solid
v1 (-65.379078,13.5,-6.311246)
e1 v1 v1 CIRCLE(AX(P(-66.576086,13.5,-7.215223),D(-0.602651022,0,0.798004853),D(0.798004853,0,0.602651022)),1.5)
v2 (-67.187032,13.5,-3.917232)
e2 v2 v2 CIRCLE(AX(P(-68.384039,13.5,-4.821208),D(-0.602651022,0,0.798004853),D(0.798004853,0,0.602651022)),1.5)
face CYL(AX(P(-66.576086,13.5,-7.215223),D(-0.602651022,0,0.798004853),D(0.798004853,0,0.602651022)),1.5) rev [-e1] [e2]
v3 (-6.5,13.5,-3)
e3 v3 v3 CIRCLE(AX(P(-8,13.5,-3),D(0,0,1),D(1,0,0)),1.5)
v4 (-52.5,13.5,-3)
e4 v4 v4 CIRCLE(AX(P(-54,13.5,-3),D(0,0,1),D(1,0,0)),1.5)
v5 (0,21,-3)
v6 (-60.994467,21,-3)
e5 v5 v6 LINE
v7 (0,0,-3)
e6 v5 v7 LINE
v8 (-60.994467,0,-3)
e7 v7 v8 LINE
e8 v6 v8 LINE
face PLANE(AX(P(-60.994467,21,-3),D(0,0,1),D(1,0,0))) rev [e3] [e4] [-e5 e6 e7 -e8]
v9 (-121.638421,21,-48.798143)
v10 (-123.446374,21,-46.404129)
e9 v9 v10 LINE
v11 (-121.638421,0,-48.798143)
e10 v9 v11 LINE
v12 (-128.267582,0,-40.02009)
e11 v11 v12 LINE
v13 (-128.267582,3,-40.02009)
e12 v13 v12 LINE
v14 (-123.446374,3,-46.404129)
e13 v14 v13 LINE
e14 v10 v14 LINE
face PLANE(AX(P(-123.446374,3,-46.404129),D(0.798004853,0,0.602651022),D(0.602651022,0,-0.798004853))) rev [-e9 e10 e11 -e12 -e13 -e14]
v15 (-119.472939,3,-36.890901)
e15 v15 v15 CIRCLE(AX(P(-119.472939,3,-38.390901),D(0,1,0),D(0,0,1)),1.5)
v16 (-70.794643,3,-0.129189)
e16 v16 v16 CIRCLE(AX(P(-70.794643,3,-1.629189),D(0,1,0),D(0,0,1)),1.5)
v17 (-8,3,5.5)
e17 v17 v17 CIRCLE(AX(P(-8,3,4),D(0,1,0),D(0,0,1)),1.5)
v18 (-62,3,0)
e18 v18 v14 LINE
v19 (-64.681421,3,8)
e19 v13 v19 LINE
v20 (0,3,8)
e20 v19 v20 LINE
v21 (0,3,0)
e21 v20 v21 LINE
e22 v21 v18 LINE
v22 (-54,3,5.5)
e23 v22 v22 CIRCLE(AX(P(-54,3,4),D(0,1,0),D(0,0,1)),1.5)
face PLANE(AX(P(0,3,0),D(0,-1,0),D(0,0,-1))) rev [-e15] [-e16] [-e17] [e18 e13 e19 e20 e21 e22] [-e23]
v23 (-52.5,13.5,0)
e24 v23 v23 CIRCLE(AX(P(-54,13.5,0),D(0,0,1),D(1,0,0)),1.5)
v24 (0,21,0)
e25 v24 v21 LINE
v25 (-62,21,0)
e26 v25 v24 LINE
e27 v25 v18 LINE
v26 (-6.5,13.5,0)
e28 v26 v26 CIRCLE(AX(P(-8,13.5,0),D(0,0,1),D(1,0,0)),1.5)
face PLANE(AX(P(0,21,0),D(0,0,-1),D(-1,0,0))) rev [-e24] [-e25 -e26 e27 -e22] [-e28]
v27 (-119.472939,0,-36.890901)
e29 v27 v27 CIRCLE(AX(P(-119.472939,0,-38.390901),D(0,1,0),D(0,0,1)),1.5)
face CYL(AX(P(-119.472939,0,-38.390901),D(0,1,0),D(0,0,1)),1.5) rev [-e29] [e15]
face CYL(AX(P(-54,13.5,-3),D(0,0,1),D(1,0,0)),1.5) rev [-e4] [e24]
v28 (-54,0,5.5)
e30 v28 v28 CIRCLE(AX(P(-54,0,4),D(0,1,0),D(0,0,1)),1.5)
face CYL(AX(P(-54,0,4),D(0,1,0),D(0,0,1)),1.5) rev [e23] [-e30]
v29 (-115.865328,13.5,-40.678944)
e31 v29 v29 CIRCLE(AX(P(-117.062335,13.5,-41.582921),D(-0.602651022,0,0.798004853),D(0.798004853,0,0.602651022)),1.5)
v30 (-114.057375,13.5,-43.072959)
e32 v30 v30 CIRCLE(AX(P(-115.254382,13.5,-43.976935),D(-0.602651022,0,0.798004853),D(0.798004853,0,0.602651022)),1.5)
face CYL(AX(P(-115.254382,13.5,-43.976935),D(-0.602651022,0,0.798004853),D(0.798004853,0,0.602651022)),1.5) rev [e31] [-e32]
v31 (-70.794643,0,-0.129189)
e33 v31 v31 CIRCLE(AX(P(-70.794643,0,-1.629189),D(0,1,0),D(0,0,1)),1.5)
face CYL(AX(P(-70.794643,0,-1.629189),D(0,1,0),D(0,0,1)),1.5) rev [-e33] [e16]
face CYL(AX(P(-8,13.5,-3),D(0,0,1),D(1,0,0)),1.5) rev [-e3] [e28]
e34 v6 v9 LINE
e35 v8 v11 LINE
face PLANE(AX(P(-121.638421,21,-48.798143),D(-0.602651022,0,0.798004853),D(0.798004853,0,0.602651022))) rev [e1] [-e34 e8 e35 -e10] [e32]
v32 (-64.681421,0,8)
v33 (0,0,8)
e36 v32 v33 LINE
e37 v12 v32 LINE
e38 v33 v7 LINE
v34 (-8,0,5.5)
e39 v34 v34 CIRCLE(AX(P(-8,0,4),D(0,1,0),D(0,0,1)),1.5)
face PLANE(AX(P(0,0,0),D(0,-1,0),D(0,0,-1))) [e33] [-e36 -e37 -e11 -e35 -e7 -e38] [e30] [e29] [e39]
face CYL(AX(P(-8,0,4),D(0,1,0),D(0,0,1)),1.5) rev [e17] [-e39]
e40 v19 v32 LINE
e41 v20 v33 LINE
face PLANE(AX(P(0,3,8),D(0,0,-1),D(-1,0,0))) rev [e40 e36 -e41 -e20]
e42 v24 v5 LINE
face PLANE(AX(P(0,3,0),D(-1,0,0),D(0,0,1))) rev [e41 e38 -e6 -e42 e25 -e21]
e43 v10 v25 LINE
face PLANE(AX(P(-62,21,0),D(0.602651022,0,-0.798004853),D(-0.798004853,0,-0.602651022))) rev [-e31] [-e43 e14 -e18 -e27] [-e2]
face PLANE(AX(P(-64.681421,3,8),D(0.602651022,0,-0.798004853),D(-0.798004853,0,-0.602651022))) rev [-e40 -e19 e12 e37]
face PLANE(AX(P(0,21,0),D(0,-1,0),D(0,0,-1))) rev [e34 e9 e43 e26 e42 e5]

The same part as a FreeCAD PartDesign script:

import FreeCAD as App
import Part
import Sketcher

V = App.Vector
Q = App.Units.Quantity

doc = App.newDocument("Part")
params = doc.addObject("Spreadsheet::Sheet", "Params")
for row, (alias, value) in enumerate([
    ("sketch1_width", "62 mm"),
    ("sketch1_height", "8 mm"),
    ("sketch1_length", "77 mm"),
    ("sketch1_length2", "8 mm"),
    ("pad1_length", "3 mm"),
    ("sketch2_width", "62 mm"),
    ("sketch2_height", "3 mm"),
    ("sketch2_length", "3 mm"),
    ("sketch2_length2", "77 mm"),
    ("pad2_length", "18 mm"),
    ("pad2_length2", "3 mm"),
    ("sketch3_diameter", "3 mm"),
    ("pocket1_length", "3 mm"),
    ("sketch4_diameter", "3 mm"),
    ("pocket2_length", "3 mm"),
    ("sketch5_diameter", "3 mm"),
    ("pocket3_length", "3 mm"),
    ("sketch6_diameter", "3 mm"),
    ("pocket4_length", "3 mm"),
    ("sketch7_diameter", "3 mm"),
    ("pocket5_length", "3 mm"),
    ("sketch8_diameter", "3 mm"),
    ("pad3_length", "3 mm"),
], start=1):
    params.set(f"A{row}", alias)
    params.set(f"B{row}", "=" + value)
    params.setAlias(f"B{row}", alias)

body = doc.addObject("PartDesign::Body", "Body")

# Sketch on XZ plane
sketch1 = doc.addObject("Sketcher::SketchObject", "Sketch")
body.addObject(sketch1)
sketch1.AttachmentSupport = (doc.XZ_Plane, [""])
sketch1.MapMode = "FlatFace"
sketch1.addGeometry([
    Part.LineSegment(V(0, 0, 0), V(-62, 0, 0)),  # 0
    Part.LineSegment(V(-62, 0, 0), V(-123, -46, 0)),  # 1
    Part.LineSegment(V(-123, -46, 0), V(-128, -40, 0)),  # 2
    Part.LineSegment(V(-128, -40, 0), V(-65, 8, 0)),  # 3
    Part.LineSegment(V(-65, 8, 0), V(0, 8, 0)),  # 4
    Part.LineSegment(V(0, 8, 0), V(0, 0, 0)),  # 5
], False)
sketch1.addConstraint([
    Sketcher.Constraint("Coincident", 0, 2, 1, 1),
    Sketcher.Constraint("Coincident", 1, 2, 2, 1),
    Sketcher.Constraint("Coincident", 2, 2, 3, 1),
    Sketcher.Constraint("Coincident", 3, 2, 4, 1),
    Sketcher.Constraint("Coincident", 4, 2, 5, 1),
    Sketcher.Constraint("Coincident", 5, 2, 0, 1),
    Sketcher.Constraint("Horizontal", 0),
    Sketcher.Constraint("Horizontal", 4),
    Sketcher.Constraint("Vertical", 5),
    Sketcher.Constraint("Coincident", 5, 2, -1, 1),
    Sketcher.Constraint("Perpendicular", 1, 2),
    Sketcher.Constraint("Perpendicular", 2, 3),
    Sketcher.Constraint("DistanceX", 0, 2, 0, 1, 62.0),
    Sketcher.Constraint("DistanceY", 5, 2, 5, 1, 8.0),
    Sketcher.Constraint("Distance", 1, 77.0),
    Sketcher.Constraint("Distance", 2, 8.0),
    Sketcher.Constraint("Angle", 1, Q("-142.94 deg")),
])
sketch1.setExpression("Constraints[12]", "Params.sketch1_width")
sketch1.setExpression("Constraints[13]", "Params.sketch1_height")
sketch1.setExpression("Constraints[14]", "Params.sketch1_length")
sketch1.setExpression("Constraints[15]", "Params.sketch1_length2")
pad1 = doc.addObject("PartDesign::Pad", "Pad")
body.addObject(pad1)
pad1.Profile = sketch1
pad1.setExpression("Length", "Params.pad1_length")
pad1.Reversed = True

# Sketch on XZ plane
sketch2 = doc.addObject("Sketcher::SketchObject", "Sketch001")
body.addObject(sketch2)
sketch2.AttachmentSupport = (doc.XZ_Plane, [""])
sketch2.MapMode = "FlatFace"
sketch2.AttachmentOffset = App.Placement(V(0, 0, -3), App.Rotation())
sketch2.addGeometry([
    Part.LineSegment(V(-121.6, -48.8, 0), V(-123.4, -46.4, 0)),  # 0
    Part.LineSegment(V(-123.4, -46.4, 0), V(-62, 0, 0)),  # 1
    Part.LineSegment(V(-62, 0, 0), V(0, 0, 0)),  # 2
    Part.LineSegment(V(0, 0, 0), V(0, -3, 0)),  # 3
    Part.LineSegment(V(0, -3, 0), V(-61, -3, 0)),  # 4
    Part.LineSegment(V(-61, -3, 0), V(-121.6, -48.8, 0)),  # 5
], False)
sketch2.addConstraint([
    Sketcher.Constraint("Coincident", 0, 2, 1, 1),
    Sketcher.Constraint("Coincident", 1, 2, 2, 1),
    Sketcher.Constraint("Coincident", 2, 2, 3, 1),
    Sketcher.Constraint("Coincident", 3, 2, 4, 1),
    Sketcher.Constraint("Coincident", 4, 2, 5, 1),
    Sketcher.Constraint("Coincident", 5, 2, 0, 1),
    Sketcher.Constraint("Horizontal", 2),
    Sketcher.Constraint("Vertical", 3),
    Sketcher.Constraint("Horizontal", 4),
    Sketcher.Constraint("Coincident", 2, 2, -1, 1),
    Sketcher.Constraint("Perpendicular", 0, 1),
    Sketcher.Constraint("Parallel", 1, 5),
    Sketcher.Constraint("DistanceX", 2, 1, 2, 2, 62.0),
    Sketcher.Constraint("DistanceY", 3, 2, 3, 1, 3.0),
    Sketcher.Constraint("Distance", 0, 3.0),
    Sketcher.Constraint("Distance", 1, 77.0),
    Sketcher.Constraint("Angle", 0, Q("127.06 deg")),
])
sketch2.setExpression("Constraints[12]", "Params.sketch2_width")
sketch2.setExpression("Constraints[13]", "Params.sketch2_height")
sketch2.setExpression("Constraints[14]", "Params.sketch2_length")
sketch2.setExpression("Constraints[15]", "Params.sketch2_length2")
pad2 = doc.addObject("PartDesign::Pad", "Pad001")
body.addObject(pad2)
pad2.Profile = sketch2
pad2.Type = "TwoLengths"
pad2.setExpression("Length", "Params.pad2_length")
pad2.setExpression("Length2", "Params.pad2_length2")
pad2.Reversed = True

# Sketch on XZ plane
sketch3 = doc.addObject("Sketcher::SketchObject", "Sketch002")
body.addObject(sketch3)
sketch3.AttachmentSupport = (doc.XZ_Plane, [""])
sketch3.MapMode = "FlatFace"
sketch3.AttachmentOffset = App.Placement(V(0, 0, -3), App.Rotation())
sketch3.addGeometry([
    Part.Circle(V(-4, 4, 0), V(0, 0, 1), 1.5),
    Part.Circle(V(-58, 4, 0), V(0, 0, 1), 1.5),
], False)
sketch3.addConstraint([
    Sketcher.Constraint("Equal", 0, 1),
    Sketcher.Constraint("Horizontal", 0, 3, 1, 3),
    Sketcher.Constraint("Diameter", 0, 3.0),
    Sketcher.Constraint("DistanceX", 0, 3, -1, 1, 4.0),
    Sketcher.Constraint("DistanceY", -1, 1, 0, 3, 4.0),
    Sketcher.Constraint("DistanceX", 1, 3, -1, 1, 58.0),
])
sketch3.setExpression("Constraints[2]", "Params.sketch3_diameter")
pocket1 = doc.addObject("PartDesign::Pocket", "Pocket")
body.addObject(pocket1)
pocket1.Profile = sketch3
pocket1.setExpression("Length", "Params.pocket1_length")
pocket1.Reversed = True

# Sketch on XZ plane
sketch4 = doc.addObject("Sketcher::SketchObject", "Sketch003")
body.addObject(sketch4)
sketch4.AttachmentSupport = (doc.XZ_Plane, [""])
sketch4.MapMode = "FlatFace"
sketch4.AttachmentOffset = App.Placement(V(0, 0, -3), App.Rotation())
sketch4.addGeometry([
    Part.Circle(V(-122.7, -40.8, 0), V(0, 0, 1), 1.5),
    Part.Circle(V(-67.6, 0.8, 0), V(0, 0, 1), 1.5),
], False)
sketch4.addConstraint([
    Sketcher.Constraint("Equal", 0, 1),
    Sketcher.Constraint("Diameter", 0, 3.0),
    Sketcher.Constraint("DistanceX", 0, 3, -1, 1, 122.664958),
    Sketcher.Constraint("DistanceY", 0, 3, 1, 3, 41.582921),
    Sketcher.Constraint("DistanceY", 0, 3, -1, 1, 40.801505),
    Sketcher.Constraint("DistanceX", 1, 3, -1, 1, 67.602624),
])
sketch4.setExpression("Constraints[1]", "Params.sketch4_diameter")
pocket2 = doc.addObject("PartDesign::Pocket", "Pocket001")
body.addObject(pocket2)
pocket2.Profile = sketch4
pocket2.setExpression("Length", "Params.pocket2_length")
pocket2.Reversed = True

# Sketch on an angled plane
sketch5 = doc.addObject("Sketcher::SketchObject", "Sketch004")
body.addObject(sketch5)
sketch5.Placement = App.Placement(V(-22.517672, 0, 29.816943), App.Rotation(V(0.798004853, 0, 0.602651022), V(0, 1, 0), V(-0.602651022, 0, 0.798004853), "ZXY"))
sketch5.addGeometry([
    Part.Circle(V(-118.5, 13.5, 0), V(0, 0, 1), 1.5),
    Part.Circle(V(-57.5, 13.5, 0), V(0, 0, 1), 1.5),
], False)
sketch5.addConstraint([
    Sketcher.Constraint("Equal", 0, 1),
    Sketcher.Constraint("Horizontal", 0, 3, 1, 3),
    Sketcher.Constraint("Diameter", 0, 3.0),
    Sketcher.Constraint("DistanceX", 0, 3, 1, 3, 61.0),
    Sketcher.Constraint("DistanceY", -1, 1, 0, 3, 13.5),
    Sketcher.Constraint("DistanceX", 0, 3, -1, 1, 118.476301),
])
sketch5.setExpression("Constraints[2]", "Params.sketch5_diameter")
pocket3 = doc.addObject("PartDesign::Pocket", "Pocket002")
body.addObject(pocket3)
pocket3.Profile = sketch5
pocket3.setExpression("Length", "Params.pocket3_length")

# Sketch on XY plane
sketch6 = doc.addObject("Sketcher::SketchObject", "Sketch005")
body.addObject(sketch6)
sketch6.AttachmentSupport = (doc.XY_Plane, [""])
sketch6.MapMode = "FlatFace"
sketch6.addGeometry([
    Part.Circle(V(-54, 13.5, 0), V(0, 0, 1), 1.5),
    Part.Circle(V(-8, 13.5, 0), V(0, 0, 1), 1.5),
], False)
sketch6.addConstraint([
    Sketcher.Constraint("Equal", 0, 1),
    Sketcher.Constraint("Horizontal", 0, 3, 1, 3),
    Sketcher.Constraint("Diameter", 0, 3.0),
    Sketcher.Constraint("DistanceX", 0, 3, -1, 1, 54.0),
    Sketcher.Constraint("DistanceX", 1, 3, -1, 1, 8.0),
    Sketcher.Constraint("DistanceY", -1, 1, 0, 3, 13.5),
])
sketch6.setExpression("Constraints[2]", "Params.sketch6_diameter")
pocket4 = doc.addObject("PartDesign::Pocket", "Pocket003")
body.addObject(pocket4)
pocket4.Profile = sketch6
pocket4.setExpression("Length", "Params.pocket4_length")

# Sketch on XZ plane
sketch7 = doc.addObject("Sketcher::SketchObject", "Sketch006")
body.addObject(sketch7)
sketch7.AttachmentSupport = (doc.XZ_Plane, [""])
sketch7.MapMode = "FlatFace"
sketch7.AttachmentOffset = App.Placement(V(0, 0, -3), App.Rotation())
sketch7.addGeometry([
    Part.Circle(V(-119.5, -38.4, 0), V(0, 0, 1), 1.5),
    Part.Circle(V(-70.8, -1.6, 0), V(0, 0, 1), 1.5),
    Part.Circle(V(-54, 4, 0), V(0, 0, 1), 1.5),
    Part.Circle(V(-8, 4, 0), V(0, 0, 1), 1.5),
], False)
sketch7.addConstraint([
    Sketcher.Constraint("Equal", 0, 1),
    Sketcher.Constraint("Equal", 1, 2),
    Sketcher.Constraint("Equal", 2, 3),
    Sketcher.Constraint("Horizontal", 2, 3, 3, 3),
    Sketcher.Constraint("Diameter", 0, 3.0),
    Sketcher.Constraint("DistanceX", 2, 3, -1, 1, 54.0),
    Sketcher.Constraint("DistanceY", -1, 1, 2, 3, 4.0),
    Sketcher.Constraint("DistanceX", 3, 3, -1, 1, 8.0),
    Sketcher.Constraint("DistanceY", 0, 3, -1, 1, 38.390901),
    Sketcher.Constraint("DistanceX", 0, 3, -1, 1, 119.472939),
    Sketcher.Constraint("DistanceY", 1, 3, -1, 1, 1.629189),
    Sketcher.Constraint("DistanceX", 1, 3, -1, 1, 70.794643),
])
sketch7.setExpression("Constraints[4]", "Params.sketch7_diameter")
pocket5 = doc.addObject("PartDesign::Pocket", "Pocket004")
body.addObject(pocket5)
pocket5.Profile = sketch7
pocket5.setExpression("Length", "Params.pocket5_length")
pocket5.Reversed = True

# Sketch on XZ plane
sketch8 = doc.addObject("Sketcher::SketchObject", "Sketch007")
body.addObject(sketch8)
sketch8.AttachmentSupport = (doc.XZ_Plane, [""])
sketch8.MapMode = "FlatFace"
sketch8.AttachmentOffset = App.Placement(V(0, 0, -3), App.Rotation())
sketch8.addGeometry([
    Part.Circle(V(-58, 4, 0), V(0, 0, 1), 1.5),
    Part.Circle(V(-4, 4, 0), V(0, 0, 1), 1.5),
    Part.Circle(V(-67.6, 0.8, 0), V(0, 0, 1), 1.5),
    Part.Circle(V(-122.7, -40.8, 0), V(0, 0, 1), 1.5),
], False)
sketch8.addConstraint([
    Sketcher.Constraint("Equal", 0, 1),
    Sketcher.Constraint("Equal", 1, 2),
    Sketcher.Constraint("Equal", 2, 3),
    Sketcher.Constraint("Horizontal", 0, 3, 1, 3),
    Sketcher.Constraint("Diameter", 0, 3.0),
    Sketcher.Constraint("DistanceX", 0, 3, -1, 1, 58.0),
    Sketcher.Constraint("DistanceY", -1, 1, 0, 3, 4.0),
    Sketcher.Constraint("DistanceX", 1, 3, -1, 1, 4.0),
    Sketcher.Constraint("DistanceX", 3, 3, -1, 1, 122.664958),
    Sketcher.Constraint("DistanceY", 3, 3, 2, 3, 41.582921),
    Sketcher.Constraint("DistanceX", 2, 3, -1, 1, 67.602624),
    Sketcher.Constraint("DistanceY", -1, 1, 2, 3, 0.781415),
])
sketch8.setExpression("Constraints[4]", "Params.sketch8_diameter")
pad3 = doc.addObject("PartDesign::Pad", "Pad002")
body.addObject(pad3)
pad3.Profile = sketch8
pad3.setExpression("Length", "Params.pad3_length")

doc.recompute()
